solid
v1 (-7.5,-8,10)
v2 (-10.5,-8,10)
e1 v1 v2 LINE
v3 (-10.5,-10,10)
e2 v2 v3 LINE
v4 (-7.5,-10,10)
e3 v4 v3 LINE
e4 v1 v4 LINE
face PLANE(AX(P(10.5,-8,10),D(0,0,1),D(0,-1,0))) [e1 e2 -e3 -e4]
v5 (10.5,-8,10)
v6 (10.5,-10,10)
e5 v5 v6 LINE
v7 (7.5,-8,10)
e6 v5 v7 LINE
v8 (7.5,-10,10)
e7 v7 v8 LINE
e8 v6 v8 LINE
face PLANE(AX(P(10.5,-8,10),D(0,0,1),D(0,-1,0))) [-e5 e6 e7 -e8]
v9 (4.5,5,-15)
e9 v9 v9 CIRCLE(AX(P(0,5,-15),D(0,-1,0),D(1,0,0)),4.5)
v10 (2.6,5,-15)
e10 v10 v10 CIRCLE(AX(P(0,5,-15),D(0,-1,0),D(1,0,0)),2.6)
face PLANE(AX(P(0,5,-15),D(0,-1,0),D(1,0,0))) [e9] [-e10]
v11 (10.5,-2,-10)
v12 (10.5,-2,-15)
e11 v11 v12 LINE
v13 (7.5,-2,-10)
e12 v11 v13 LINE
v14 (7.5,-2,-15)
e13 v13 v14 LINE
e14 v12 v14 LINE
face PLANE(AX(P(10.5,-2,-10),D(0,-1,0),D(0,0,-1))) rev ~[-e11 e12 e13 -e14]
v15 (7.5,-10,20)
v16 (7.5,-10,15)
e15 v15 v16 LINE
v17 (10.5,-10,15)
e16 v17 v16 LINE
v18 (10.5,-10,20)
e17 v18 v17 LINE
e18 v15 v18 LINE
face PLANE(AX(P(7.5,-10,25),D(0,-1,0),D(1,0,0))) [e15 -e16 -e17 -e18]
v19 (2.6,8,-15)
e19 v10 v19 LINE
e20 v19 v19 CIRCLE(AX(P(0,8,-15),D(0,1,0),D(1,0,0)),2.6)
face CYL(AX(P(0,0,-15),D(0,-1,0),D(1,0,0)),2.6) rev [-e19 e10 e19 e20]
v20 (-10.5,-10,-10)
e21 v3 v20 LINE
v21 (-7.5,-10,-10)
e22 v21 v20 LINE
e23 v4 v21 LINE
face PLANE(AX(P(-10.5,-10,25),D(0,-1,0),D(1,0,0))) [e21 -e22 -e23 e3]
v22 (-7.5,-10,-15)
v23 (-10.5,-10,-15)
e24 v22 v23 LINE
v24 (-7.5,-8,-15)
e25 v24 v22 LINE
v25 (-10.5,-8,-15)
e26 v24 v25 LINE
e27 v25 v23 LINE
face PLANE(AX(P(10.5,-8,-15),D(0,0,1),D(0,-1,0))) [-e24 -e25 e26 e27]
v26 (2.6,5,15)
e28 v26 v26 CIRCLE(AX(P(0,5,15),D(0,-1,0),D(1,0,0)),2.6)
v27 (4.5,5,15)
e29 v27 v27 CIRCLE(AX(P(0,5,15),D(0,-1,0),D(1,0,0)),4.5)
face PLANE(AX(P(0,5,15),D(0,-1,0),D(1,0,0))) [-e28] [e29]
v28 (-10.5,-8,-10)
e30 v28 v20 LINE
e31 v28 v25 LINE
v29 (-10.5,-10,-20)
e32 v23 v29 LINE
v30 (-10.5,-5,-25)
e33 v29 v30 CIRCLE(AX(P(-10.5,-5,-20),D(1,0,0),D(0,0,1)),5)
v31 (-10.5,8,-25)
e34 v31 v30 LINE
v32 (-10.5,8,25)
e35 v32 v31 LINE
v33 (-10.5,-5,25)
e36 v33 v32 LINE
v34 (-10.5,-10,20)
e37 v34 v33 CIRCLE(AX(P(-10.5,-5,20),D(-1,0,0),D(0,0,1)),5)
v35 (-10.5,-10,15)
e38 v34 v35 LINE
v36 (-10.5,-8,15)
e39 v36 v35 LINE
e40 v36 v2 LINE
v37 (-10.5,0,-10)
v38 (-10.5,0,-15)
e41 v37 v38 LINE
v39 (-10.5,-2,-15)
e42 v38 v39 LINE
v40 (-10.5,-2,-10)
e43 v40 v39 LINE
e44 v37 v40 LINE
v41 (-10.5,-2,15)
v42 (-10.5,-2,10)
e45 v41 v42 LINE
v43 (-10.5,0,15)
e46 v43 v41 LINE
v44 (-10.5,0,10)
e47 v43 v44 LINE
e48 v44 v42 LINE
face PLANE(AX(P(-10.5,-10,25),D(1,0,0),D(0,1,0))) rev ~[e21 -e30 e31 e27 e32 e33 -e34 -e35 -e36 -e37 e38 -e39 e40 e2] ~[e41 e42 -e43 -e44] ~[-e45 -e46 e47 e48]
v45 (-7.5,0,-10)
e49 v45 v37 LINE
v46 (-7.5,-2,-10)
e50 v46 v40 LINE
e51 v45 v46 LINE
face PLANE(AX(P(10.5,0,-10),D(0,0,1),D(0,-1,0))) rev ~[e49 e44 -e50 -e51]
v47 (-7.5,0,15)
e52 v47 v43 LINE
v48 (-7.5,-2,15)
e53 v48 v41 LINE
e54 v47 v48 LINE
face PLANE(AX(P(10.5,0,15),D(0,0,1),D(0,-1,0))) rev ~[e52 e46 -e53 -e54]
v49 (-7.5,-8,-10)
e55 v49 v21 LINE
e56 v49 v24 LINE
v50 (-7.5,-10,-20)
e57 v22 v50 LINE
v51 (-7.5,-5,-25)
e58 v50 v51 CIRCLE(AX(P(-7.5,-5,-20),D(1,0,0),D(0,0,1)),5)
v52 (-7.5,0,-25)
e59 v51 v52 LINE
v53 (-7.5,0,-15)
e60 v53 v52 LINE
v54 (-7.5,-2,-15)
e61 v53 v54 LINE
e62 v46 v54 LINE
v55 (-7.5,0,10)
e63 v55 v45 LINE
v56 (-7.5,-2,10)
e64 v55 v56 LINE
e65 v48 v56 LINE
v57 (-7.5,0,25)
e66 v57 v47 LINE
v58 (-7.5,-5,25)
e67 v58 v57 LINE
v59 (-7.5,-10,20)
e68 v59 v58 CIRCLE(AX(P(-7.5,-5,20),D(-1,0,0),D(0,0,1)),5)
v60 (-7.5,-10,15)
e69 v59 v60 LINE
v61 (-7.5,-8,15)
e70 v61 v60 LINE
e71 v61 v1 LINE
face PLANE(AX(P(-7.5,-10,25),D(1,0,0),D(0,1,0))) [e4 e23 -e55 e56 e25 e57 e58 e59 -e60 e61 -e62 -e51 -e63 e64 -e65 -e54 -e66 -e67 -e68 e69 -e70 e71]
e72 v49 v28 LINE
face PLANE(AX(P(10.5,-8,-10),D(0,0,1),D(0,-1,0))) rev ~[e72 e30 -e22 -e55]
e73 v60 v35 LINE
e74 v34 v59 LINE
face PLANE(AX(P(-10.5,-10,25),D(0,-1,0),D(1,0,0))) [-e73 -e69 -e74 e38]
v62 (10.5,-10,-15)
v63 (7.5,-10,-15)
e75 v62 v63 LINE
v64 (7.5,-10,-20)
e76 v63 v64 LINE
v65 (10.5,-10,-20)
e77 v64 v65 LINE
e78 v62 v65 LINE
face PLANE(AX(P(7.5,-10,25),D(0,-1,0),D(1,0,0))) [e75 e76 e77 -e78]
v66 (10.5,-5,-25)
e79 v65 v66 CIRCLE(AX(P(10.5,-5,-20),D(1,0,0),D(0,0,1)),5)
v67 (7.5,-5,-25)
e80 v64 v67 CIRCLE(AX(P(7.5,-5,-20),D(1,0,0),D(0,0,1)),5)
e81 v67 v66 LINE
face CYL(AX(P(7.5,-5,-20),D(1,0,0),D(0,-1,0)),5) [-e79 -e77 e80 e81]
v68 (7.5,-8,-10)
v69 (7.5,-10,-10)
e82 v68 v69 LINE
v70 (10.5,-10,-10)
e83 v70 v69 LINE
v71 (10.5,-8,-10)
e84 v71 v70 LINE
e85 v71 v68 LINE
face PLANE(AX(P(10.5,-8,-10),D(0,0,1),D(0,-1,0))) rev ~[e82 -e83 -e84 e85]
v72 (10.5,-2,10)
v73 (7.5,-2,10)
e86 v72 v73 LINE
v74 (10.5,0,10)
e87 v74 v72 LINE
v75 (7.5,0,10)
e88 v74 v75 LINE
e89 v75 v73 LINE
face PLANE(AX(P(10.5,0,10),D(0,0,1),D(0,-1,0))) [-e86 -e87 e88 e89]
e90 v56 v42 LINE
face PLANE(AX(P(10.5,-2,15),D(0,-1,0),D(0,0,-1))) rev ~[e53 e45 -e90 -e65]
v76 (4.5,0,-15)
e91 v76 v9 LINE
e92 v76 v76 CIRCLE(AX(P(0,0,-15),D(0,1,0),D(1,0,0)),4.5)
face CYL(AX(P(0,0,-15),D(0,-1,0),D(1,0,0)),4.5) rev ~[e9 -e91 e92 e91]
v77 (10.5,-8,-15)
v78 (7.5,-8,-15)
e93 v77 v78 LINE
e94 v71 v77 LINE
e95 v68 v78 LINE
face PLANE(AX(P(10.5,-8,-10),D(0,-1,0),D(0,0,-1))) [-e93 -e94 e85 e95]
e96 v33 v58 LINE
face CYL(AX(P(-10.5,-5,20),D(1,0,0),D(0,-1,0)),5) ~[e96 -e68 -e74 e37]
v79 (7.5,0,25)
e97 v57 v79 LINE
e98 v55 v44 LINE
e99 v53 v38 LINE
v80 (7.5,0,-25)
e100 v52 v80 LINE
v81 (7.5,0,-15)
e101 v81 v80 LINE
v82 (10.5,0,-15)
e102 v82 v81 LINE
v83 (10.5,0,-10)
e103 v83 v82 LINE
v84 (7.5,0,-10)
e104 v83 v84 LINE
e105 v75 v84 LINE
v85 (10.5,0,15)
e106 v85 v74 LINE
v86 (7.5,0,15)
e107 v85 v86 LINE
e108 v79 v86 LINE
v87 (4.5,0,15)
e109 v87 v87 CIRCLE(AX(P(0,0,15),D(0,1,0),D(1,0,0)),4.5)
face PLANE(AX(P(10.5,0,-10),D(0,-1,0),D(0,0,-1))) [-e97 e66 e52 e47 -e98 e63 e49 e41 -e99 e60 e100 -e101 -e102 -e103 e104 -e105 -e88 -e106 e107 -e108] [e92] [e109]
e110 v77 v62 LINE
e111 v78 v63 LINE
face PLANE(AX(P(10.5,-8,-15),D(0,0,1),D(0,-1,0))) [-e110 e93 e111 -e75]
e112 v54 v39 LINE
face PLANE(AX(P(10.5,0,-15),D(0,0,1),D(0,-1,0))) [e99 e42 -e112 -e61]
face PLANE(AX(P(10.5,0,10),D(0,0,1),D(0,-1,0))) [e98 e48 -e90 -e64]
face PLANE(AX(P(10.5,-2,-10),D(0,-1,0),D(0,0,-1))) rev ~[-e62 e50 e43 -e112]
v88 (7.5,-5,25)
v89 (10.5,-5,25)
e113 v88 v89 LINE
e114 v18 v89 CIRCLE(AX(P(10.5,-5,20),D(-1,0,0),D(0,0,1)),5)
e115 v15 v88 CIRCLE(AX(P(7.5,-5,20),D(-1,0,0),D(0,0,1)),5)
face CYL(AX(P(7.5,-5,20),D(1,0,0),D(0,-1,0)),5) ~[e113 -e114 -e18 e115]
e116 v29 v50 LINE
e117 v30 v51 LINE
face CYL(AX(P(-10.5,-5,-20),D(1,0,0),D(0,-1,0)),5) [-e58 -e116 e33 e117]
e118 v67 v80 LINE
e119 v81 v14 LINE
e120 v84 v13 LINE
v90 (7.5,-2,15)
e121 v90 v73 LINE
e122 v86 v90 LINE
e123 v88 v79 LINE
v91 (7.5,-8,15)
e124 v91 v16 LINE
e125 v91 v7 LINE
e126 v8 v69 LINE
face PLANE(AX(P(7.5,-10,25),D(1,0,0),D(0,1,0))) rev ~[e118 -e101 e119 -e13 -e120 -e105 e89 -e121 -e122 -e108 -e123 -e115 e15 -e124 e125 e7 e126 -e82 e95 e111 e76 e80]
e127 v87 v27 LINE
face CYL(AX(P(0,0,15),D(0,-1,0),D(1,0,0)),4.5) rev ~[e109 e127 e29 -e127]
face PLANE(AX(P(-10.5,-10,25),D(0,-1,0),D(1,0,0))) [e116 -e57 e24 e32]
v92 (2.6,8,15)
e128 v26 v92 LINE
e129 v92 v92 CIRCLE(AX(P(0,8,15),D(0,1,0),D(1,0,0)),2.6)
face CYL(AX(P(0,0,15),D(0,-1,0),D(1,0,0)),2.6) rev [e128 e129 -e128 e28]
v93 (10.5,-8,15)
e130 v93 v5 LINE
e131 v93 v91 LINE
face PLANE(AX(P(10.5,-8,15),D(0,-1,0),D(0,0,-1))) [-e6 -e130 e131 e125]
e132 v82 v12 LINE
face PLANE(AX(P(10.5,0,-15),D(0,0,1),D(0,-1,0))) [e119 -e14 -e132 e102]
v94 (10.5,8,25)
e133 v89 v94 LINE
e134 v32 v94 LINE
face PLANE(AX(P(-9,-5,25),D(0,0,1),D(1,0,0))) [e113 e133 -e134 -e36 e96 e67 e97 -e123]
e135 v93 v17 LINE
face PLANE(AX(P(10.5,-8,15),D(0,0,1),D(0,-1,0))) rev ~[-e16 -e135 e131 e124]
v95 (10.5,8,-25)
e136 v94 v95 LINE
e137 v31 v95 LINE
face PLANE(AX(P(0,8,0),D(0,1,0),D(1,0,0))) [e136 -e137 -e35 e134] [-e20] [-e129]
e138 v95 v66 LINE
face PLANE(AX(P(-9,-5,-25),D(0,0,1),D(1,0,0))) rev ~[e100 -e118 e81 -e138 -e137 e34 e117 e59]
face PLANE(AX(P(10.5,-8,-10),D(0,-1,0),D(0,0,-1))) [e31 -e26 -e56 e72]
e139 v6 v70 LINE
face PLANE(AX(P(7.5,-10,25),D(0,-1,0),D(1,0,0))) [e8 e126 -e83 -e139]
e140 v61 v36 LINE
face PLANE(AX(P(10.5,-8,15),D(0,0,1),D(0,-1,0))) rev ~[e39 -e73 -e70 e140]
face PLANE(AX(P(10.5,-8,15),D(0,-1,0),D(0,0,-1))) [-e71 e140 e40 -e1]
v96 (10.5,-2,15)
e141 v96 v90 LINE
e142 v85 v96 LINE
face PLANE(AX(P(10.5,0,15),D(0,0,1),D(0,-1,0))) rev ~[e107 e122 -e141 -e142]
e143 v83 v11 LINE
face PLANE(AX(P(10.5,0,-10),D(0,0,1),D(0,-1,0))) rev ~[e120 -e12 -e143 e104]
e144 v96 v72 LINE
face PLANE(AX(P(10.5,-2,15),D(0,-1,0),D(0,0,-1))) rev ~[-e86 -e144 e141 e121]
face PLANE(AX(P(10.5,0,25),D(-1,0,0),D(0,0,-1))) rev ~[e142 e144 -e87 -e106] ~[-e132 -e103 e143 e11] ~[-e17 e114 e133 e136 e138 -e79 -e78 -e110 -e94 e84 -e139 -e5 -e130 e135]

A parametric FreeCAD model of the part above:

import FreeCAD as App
import Part
import Sketcher


def edges_at(feature, points):
    """Names of the edges that pass closest to the given points."""
    edges = feature.Shape.Edges
    near = lambda p: min(range(len(edges)), key=lambda i: edges[i].distToShape(Part.Vertex(*p))[0])
    return sorted({f"Edge{near(p) + 1}" for p in points})


def add_polygon(sketch, points):
    """Adds a closed chain of lines whose ends are joined by coincident constraints."""
    first, n = sketch.GeometryCount, len(points)
    for a, b in zip(points, points[1:] + points[:1]):
        sketch.addGeometry(Part.LineSegment(App.Vector(*a, 0), App.Vector(*b, 0)), False)
    for i in range(n):
        sketch.addConstraint(Sketcher.Constraint("Coincident", first + i, 2, first + (i + 1) % n, 1))

doc = App.newDocument("Part")
body = doc.addObject("PartDesign::Body", "Body")

sketch1 = body.newObject("Sketcher::SketchObject", "Sketch")
sketch1.AttachmentSupport = (doc.getObject("XZ_Plane"), [""])
sketch1.MapMode = "FlatFace"
add_polygon(sketch1, [(-10.5, -25), (-10.5, 25), (10.5, 25), (10.5, -25)])
sketch1.addGeometry(Part.Circle(App.Vector(0, 15, 0), App.Vector(0, 0, 1), 2.6), False)
sketch1.addGeometry(Part.Circle(App.Vector(0, -15, 0), App.Vector(0, 0, 1), 2.6), False)
sketch1.addConstraint([
    Sketcher.Constraint("Vertical", 0),
    Sketcher.Constraint("Horizontal", 1),
    Sketcher.Constraint("Vertical", 2),
    Sketcher.Constraint("Horizontal", 3),
    Sketcher.Constraint("Equal", 4, 5),
    Sketcher.Constraint("Symmetric", 4, 3, 5, 3, -1, 1),
    Sketcher.Constraint("Symmetric", 0, 2, 2, 2, -1, 1),
    Sketcher.Constraint("PointOnObject", 4, 3, -2),
    Sketcher.Constraint("Diameter", 4, 5.2),
    Sketcher.Constraint("DistanceX", 1, 1, 1, 2, 21.0),
    Sketcher.Constraint("DistanceY", 0, 1, 0, 2, 50.0),
    Sketcher.Constraint("DistanceY", -1, 1, 4, 3, 15.0),
])
pad1 = body.newObject("PartDesign::Pad", "Pad")
pad1.Profile = sketch1
pad1.Length = 8
pad1.Reversed = True

sketch2 = body.newObject("Sketcher::SketchObject", "Sketch001")
sketch2.AttachmentSupport = (doc.getObject("XZ_Plane"), [""])
sketch2.MapMode = "FlatFace"
sketch2.addGeometry([
    Part.Circle(App.Vector(0, 15, 0), App.Vector(0, 0, 1), 4.5),
    Part.Circle(App.Vector(0, -15, 0), App.Vector(0, 0, 1), 4.5),
], False)
sketch2.addConstraint([
    Sketcher.Constraint("Equal", 0, 1),
    Sketcher.Constraint("Symmetric", 0, 3, 1, 3, -1, 1),
    Sketcher.Constraint("PointOnObject", 0, 3, -2),
    Sketcher.Constraint("Diameter", 0, 9.0),
    Sketcher.Constraint("DistanceY", -1, 1, 0, 3, 15.0),
])
pocket1 = body.newObject("PartDesign::Pocket", "Pocket")
pocket1.Profile = sketch2
pocket1.Length = 5

sketch3 = body.newObject("Sketcher::SketchObject", "Sketch002")
sketch3.AttachmentSupport = (doc.getObject("XY_Plane"), [""])
sketch3.MapMode = "FlatFace"
sketch3.AttachmentOffset = App.Placement(App.Vector(0, 0, 25), App.Rotation())
add_polygon(sketch3, [(-10.5, 0), (-10.5, -10), (-7.5, -10), (-7.5, 0)])
add_polygon(sketch3, [(7.5, 0), (7.5, -10), (10.5, -10), (10.5, 0)])
sketch3.addConstraint([
    Sketcher.Constraint("Vertical", 0),
    Sketcher.Constraint("Horizontal", 1),
    Sketcher.Constraint("Vertical", 2),
    Sketcher.Constraint("Horizontal", 3),
    Sketcher.Constraint("Vertical", 4),
    Sketcher.Constraint("Horizontal", 5),
    Sketcher.Constraint("Vertical", 6),
    Sketcher.Constraint("Horizontal", 7),
    Sketcher.Constraint("Symmetric", 3, 2, 6, 2, -1, 1),
    Sketcher.Constraint("Symmetric", 1, 2, 4, 2, -2),
    Sketcher.Constraint("PointOnObject", 2, 2, -1),
    Sketcher.Constraint("DistanceX", 1, 1, 1, 2, 3.0),
    Sketcher.Constraint("DistanceY", 0, 2, 0, 1, 10.0),
    Sketcher.Constraint("DistanceX", 1, 2, 4, 2, 15.0),
])
pad2 = body.newObject("PartDesign::Pad", "Pad001")
pad2.Profile = sketch3
pad2.Length = 50
pad2.Reversed = True

sketch4 = body.newObject("Sketcher::SketchObject", "Sketch003")
sketch4.AttachmentSupport = (doc.getObject("YZ_Plane"), [""])
sketch4.MapMode = "FlatFace"
sketch4.AttachmentOffset = App.Placement(App.Vector(0, 0, 10.5), App.Rotation())
add_polygon(sketch4, [(0, 10), (0, 15), (-2, 15), (-2, 10)])
add_polygon(sketch4, [(-8, 10), (-8, 15), (-10, 15), (-10, 10)])
add_polygon(sketch4, [(-8, -15), (-8, -10), (-10, -10), (-10, -15)])
add_polygon(sketch4, [(0, -15), (0, -10), (-2, -10), (-2, -15)])
sketch4.addConstraint([
    Sketcher.Constraint("Vertical", 0),
    Sketcher.Constraint("Horizontal", 1),
    Sketcher.Constraint("Vertical", 2),
    Sketcher.Constraint("Horizontal", 3),
    Sketcher.Constraint("Vertical", 4),
    Sketcher.Constraint("Horizontal", 5),
    Sketcher.Constraint("Vertical", 6),
    Sketcher.Constraint("Horizontal", 7),
    Sketcher.Constraint("Vertical", 8),
    Sketcher.Constraint("Horizontal", 9),
    Sketcher.Constraint("Vertical", 10),
    Sketcher.Constraint("Horizontal", 11),
    Sketcher.Constraint("Vertical", 12),
    Sketcher.Constraint("Horizontal", 13),
    Sketcher.Constraint("Vertical", 14),
    Sketcher.Constraint("Horizontal", 15),
    Sketcher.Constraint("Symmetric", 3, 2, 12, 2, -1, 1),
    Sketcher.Constraint("Symmetric", 7, 2, 8, 2, -1),
    Sketcher.Constraint("Symmetric", 5, 2, 10, 2, -1),
    Sketcher.Constraint("Symmetric", 1, 2, 14, 2, -1),
    Sketcher.Constraint("PointOnObject", 0, 2, -2),
    Sketcher.Constraint("Horizontal", 1, 2, 4, 2),
    Sketcher.Constraint("Horizontal", 3, 2, 6, 2),
    Sketcher.Constraint("Equal", 3, 5),
    Sketcher.Constraint("DistanceX", 1, 2, 1, 1, 2.0),
    Sketcher.Constraint("DistanceY", 0, 1, 0, 2, 5.0),
    Sketcher.Constraint("DistanceY", -1, 1, 0, 2, 15.0),
    Sketcher.Constraint("DistanceX", 4, 2, -1, 1, 8.0),
])
pocket2 = body.newObject("PartDesign::Pocket", "Pocket001")
pocket2.Profile = sketch4
pocket2.Type = "ThroughAll"
doc.recompute()

fillet = body.newObject("PartDesign::Fillet", "Fillet")
fillet.Base = (pocket2, edges_at(pocket2, [
    (-9, -10, -25),
    (-9, -10, 25),
    (9, -10, 25),
    (9, -10, -25),
]))
fillet.Radius = 5

doc.recompute()
